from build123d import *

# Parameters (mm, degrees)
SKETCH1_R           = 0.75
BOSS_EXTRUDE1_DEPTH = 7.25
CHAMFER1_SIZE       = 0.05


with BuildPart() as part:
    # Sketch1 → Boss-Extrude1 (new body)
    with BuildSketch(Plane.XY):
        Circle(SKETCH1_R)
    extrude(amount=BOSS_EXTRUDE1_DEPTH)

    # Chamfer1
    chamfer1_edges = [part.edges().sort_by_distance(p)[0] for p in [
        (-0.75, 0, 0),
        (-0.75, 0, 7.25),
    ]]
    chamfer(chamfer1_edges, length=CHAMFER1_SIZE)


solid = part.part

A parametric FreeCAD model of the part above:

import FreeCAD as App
import Part
import Sketcher
from FreeCAD import Vector
Q = App.Units.Quantity


def edges_at(feature, points):
    """Names of the edges that pass closest to the given points."""
    edges = feature.Shape.Edges
    near = lambda p: min(range(len(edges)), key=lambda i: edges[i].distToShape(Part.Vertex(*p))[0])
    return sorted({f"Edge{near(p) + 1}" for p in points})

doc = App.newDocument("Part")
body = doc.addObject("PartDesign::Body", "Body")

# Sketch on XY plane
sketch1 = body.newObject("Sketcher::SketchObject", "Sketch")
sketch1.AttachmentSupport = (doc.getObject("XY_Plane"), [""])
sketch1.MapMode = "FlatFace"
sketch1.addGeometry(Part.Circle(Vector(0, 0, 0), Vector(0, 0, 1), 0.75), False)
sketch1.addConstraint([
    Sketcher.Constraint("Coincident", 0, 3, -1, 1),
    Sketcher.Constraint("Diameter", 0, Q("1.5 mm")),
])
pad1 = body.newObject("PartDesign::Pad", "Pad")
pad1.Profile = sketch1
pad1.Length = 7.25
doc.recompute()

chamfer = body.newObject("PartDesign::Chamfer", "Chamfer")
chamfer.Base = (pad1, edges_at(pad1, [(-0.75, 0, 0), (-0.75, 0, 7.25)]))
chamfer.Size = 0.05

doc.recompute()
